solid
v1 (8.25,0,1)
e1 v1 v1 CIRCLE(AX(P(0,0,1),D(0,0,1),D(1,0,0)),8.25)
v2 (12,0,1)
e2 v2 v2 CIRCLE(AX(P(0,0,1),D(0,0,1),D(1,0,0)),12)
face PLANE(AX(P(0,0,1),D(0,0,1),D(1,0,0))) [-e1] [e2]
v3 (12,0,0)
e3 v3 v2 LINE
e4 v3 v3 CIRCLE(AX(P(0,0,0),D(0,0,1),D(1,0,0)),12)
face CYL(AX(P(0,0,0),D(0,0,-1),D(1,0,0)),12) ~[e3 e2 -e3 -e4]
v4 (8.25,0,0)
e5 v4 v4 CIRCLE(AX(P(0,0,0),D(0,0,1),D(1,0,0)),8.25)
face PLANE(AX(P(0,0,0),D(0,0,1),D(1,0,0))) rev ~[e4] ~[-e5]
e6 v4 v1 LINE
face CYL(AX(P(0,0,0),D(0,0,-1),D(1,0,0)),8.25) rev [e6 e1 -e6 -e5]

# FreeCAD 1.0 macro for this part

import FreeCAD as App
import Part
import Sketcher
from FreeCAD import Vector

doc = App.newDocument("Part")
params = doc.addObject("Spreadsheet::Sheet", "Params")
for row, (alias, value) in enumerate([
    ("sketch1_diameter", "24 mm"),
    ("sketch1_diameter2", "16.5 mm"),
    ("pad1_length", "1 mm"),
], start=1):
    params.set(f"A{row}", alias)
    params.set(f"B{row}", "=" + value)
    params.setAlias(f"B{row}", alias)

body = doc.addObject("PartDesign::Body", "Body")

sketch1 = body.newObject("Sketcher::SketchObject", "Sketch")
sketch1.AttachmentSupport = (doc.getObject("XY_Plane"), [""])
sketch1.MapMode = "FlatFace"
sketch1.addGeometry(Part.Circle(Vector(0, 0, 0), Vector(0, 0, 1), 12), False)
sketch1.addGeometry(Part.Circle(Vector(0, 0, 0), Vector(0, 0, 1), 8.25), False)
sketch1.addConstraint(Sketcher.Constraint("Coincident", 0, 3, -1, 1))
sketch1.addConstraint(Sketcher.Constraint("Coincident", 1, 3, -1, 1))
sketch1.addConstraint(Sketcher.Constraint("Diameter", 0, 24.0))
sketch1.addConstraint(Sketcher.Constraint("Diameter", 1, 16.5))
sketch1.setExpression("Constraints[2]", "Params.sketch1_diameter")
sketch1.setExpression("Constraints[3]", "Params.sketch1_diameter2")
pad1 = body.newObject("PartDesign::Pad", "Pad")
pad1.Profile = sketch1
pad1.setExpression("Length", "Params.pad1_length")

doc.recompute()
